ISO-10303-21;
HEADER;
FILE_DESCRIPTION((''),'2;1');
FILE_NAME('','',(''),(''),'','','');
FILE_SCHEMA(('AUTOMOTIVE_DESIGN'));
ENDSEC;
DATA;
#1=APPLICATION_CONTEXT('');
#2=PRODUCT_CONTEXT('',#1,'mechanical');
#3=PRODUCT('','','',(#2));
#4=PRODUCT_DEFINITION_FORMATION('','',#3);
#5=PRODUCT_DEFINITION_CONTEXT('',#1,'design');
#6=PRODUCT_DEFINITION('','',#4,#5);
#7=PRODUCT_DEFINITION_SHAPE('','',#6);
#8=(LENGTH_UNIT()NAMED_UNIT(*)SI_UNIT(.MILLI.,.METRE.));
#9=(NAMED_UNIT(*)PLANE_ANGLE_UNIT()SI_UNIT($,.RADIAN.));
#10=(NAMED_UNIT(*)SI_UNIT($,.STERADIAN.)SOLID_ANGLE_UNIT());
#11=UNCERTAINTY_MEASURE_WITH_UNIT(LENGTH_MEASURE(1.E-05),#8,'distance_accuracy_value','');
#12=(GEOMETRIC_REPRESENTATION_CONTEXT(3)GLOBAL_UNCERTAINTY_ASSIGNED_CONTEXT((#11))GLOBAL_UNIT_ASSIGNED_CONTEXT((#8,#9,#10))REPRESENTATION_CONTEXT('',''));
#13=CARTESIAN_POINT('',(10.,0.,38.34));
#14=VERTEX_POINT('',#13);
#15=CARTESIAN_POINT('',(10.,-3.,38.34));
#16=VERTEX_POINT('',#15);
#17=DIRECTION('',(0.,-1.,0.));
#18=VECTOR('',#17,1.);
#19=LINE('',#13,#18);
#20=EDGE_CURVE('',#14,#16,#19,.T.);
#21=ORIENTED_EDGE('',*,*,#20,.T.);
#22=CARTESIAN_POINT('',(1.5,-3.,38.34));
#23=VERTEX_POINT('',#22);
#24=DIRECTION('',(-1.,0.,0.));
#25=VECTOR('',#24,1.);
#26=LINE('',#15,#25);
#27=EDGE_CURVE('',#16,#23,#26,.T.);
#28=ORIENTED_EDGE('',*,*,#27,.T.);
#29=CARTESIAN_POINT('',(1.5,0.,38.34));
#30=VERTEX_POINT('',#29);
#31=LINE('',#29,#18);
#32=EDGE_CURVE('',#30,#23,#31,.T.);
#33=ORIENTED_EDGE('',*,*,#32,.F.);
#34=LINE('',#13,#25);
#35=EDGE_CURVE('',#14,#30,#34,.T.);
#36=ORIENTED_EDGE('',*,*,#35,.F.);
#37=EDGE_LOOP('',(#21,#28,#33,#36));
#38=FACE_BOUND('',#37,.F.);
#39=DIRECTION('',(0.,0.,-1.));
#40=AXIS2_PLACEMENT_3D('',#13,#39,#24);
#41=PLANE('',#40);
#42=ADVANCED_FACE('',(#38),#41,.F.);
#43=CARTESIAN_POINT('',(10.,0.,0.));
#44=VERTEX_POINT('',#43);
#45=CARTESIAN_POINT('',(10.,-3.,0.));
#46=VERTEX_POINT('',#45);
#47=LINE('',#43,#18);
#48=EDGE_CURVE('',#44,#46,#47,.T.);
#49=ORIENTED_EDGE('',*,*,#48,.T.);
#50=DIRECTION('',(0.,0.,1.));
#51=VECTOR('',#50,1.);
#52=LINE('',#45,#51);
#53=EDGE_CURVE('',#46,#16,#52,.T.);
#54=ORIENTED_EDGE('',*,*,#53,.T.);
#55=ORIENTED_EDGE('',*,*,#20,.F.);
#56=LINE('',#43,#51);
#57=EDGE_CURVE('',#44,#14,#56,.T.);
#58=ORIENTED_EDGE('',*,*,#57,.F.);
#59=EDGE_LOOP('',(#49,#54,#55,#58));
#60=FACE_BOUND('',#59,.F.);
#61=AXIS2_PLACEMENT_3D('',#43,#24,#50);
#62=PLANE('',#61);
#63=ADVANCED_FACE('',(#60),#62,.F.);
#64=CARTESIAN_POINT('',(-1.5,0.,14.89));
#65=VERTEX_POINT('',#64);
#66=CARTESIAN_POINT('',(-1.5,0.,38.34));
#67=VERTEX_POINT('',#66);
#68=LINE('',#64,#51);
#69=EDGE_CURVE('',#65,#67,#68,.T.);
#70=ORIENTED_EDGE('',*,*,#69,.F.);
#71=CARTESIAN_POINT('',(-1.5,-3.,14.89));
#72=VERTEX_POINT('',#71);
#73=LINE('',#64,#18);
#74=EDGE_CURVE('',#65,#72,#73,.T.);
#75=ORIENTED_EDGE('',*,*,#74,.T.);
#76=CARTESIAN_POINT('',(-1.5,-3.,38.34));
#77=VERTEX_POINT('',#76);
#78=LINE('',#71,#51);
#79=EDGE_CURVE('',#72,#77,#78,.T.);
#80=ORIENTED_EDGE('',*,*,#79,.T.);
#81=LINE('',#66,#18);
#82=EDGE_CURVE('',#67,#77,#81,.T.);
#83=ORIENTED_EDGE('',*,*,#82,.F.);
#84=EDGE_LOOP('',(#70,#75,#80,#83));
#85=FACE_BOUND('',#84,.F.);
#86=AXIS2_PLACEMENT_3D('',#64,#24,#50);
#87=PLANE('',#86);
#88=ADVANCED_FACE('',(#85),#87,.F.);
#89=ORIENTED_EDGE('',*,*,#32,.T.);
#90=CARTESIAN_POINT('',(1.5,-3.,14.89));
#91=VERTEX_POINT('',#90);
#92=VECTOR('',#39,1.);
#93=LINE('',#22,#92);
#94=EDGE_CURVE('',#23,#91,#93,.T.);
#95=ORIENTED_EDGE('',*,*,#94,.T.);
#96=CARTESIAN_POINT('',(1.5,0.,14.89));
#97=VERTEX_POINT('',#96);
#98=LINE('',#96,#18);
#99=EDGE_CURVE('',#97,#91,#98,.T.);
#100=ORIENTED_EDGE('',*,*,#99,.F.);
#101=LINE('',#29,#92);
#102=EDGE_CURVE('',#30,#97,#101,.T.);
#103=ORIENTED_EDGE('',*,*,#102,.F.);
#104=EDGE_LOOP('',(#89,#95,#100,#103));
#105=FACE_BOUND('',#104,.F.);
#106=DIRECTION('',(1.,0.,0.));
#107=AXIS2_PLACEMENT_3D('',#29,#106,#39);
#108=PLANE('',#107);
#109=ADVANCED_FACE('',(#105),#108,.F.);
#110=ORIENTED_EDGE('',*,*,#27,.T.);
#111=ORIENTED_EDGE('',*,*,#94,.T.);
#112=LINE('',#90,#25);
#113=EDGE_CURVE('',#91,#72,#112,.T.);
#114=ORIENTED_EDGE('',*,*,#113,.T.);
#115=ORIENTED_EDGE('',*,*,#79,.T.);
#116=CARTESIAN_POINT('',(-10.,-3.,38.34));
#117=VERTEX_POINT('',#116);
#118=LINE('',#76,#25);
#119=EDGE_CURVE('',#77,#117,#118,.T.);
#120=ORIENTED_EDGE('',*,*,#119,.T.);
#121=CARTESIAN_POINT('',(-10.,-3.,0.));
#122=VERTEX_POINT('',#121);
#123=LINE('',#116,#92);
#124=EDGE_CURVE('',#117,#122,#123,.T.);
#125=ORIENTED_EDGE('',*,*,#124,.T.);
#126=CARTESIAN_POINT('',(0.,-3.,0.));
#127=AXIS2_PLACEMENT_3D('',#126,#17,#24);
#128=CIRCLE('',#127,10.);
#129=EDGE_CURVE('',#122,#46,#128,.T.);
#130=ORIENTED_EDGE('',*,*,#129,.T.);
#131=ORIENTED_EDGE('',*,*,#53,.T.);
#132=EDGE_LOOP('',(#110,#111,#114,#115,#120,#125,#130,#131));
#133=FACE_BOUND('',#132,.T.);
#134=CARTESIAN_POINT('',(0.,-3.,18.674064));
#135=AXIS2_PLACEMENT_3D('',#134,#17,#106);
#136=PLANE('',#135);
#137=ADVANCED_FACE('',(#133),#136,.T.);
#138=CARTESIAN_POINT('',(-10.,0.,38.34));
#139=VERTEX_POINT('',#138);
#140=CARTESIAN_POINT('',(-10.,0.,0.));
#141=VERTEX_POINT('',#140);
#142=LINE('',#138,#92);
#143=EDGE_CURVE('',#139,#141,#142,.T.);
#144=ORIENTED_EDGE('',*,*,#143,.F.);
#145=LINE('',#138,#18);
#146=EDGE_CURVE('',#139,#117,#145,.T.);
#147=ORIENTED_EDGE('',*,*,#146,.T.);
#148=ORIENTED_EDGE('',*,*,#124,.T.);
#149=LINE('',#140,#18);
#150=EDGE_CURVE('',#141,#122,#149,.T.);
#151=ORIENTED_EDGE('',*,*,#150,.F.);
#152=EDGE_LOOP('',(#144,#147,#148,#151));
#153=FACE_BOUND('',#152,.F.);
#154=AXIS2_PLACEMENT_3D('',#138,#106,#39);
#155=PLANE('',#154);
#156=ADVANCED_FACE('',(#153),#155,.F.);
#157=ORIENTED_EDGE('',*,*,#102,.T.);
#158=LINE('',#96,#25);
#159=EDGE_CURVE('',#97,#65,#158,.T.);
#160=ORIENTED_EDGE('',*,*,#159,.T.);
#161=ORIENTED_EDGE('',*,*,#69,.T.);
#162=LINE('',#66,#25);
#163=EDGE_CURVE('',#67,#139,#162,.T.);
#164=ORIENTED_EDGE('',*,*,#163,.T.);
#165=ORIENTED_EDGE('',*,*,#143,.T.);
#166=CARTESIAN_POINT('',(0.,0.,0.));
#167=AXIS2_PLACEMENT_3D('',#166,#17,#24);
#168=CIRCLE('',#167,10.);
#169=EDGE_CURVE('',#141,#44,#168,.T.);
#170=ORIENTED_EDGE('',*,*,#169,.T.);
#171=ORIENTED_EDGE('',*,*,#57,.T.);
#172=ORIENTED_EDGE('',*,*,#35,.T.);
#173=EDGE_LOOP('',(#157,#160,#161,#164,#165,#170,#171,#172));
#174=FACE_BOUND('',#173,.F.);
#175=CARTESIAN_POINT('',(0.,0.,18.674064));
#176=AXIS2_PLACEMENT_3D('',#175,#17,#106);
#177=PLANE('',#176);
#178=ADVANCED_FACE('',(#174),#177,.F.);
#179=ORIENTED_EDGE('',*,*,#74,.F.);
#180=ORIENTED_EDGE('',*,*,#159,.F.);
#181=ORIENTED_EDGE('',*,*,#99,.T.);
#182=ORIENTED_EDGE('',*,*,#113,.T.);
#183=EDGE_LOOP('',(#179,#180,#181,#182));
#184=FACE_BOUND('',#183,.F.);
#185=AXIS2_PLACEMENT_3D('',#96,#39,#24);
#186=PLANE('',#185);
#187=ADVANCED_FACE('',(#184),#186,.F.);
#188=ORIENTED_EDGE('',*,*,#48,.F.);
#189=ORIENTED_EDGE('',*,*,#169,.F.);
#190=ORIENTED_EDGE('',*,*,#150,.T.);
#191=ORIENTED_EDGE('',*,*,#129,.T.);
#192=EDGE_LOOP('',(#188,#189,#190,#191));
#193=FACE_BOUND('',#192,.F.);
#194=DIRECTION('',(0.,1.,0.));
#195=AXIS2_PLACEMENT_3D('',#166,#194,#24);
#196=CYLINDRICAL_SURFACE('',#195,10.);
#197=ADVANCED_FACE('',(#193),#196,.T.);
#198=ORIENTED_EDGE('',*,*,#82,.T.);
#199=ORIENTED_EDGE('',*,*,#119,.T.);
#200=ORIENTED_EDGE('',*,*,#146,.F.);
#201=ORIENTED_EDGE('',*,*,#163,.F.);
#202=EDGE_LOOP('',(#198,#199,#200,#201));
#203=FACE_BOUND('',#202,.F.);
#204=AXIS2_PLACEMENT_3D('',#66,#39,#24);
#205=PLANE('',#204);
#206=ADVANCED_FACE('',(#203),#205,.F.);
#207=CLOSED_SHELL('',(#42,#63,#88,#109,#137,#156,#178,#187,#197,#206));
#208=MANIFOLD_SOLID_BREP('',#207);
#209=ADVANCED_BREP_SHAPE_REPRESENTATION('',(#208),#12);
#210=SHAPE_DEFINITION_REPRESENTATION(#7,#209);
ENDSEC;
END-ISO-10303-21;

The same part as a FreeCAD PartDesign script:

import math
import FreeCAD as App
import Part
import Sketcher

doc = App.newDocument("Part")
body = doc.addObject("PartDesign::Body", "Body")

# Sketch on XZ plane
sketch1 = body.newObject("Sketcher::SketchObject", "Sketch")
sketch1.AttachmentSupport = (doc.getObject("XZ_Plane"), [""])
sketch1.MapMode = "FlatFace"
sketch1.addGeometry([
    Part.LineSegment(App.Vector(-10, 38.3, 0), App.Vector(-10, 0, 0)),  # 0
    Part.ArcOfCircle(Part.Circle(App.Vector(0, 0, 0), App.Vector(0, 0, 1), 10), math.radians(180), math.radians(360)),  # 1
    Part.LineSegment(App.Vector(10, 0, 0), App.Vector(10, 38.3, 0)),  # 2
    Part.LineSegment(App.Vector(10, 38.3, 0), App.Vector(1.5, 38.3, 0)),  # 3
    Part.LineSegment(App.Vector(1.5, 38.3, 0), App.Vector(1.5, 14.9, 0)),  # 4
    Part.LineSegment(App.Vector(1.5, 14.9, 0), App.Vector(-1.5, 14.9, 0)),  # 5
    Part.LineSegment(App.Vector(-1.5, 14.9, 0), App.Vector(-1.5, 38.3, 0)),  # 6
    Part.LineSegment(App.Vector(-1.5, 38.3, 0), App.Vector(-10, 38.3, 0)),  # 7
], False)
sketch1.addConstraint([
    Sketcher.Constraint("Tangent", 0, 2, 1, 1),
    Sketcher.Constraint("Tangent", 1, 2, 2, 1),
    Sketcher.Constraint("Coincident", 2, 2, 3, 1),
    Sketcher.Constraint("Coincident", 3, 2, 4, 1),
    Sketcher.Constraint("Coincident", 4, 2, 5, 1),
    Sketcher.Constraint("Coincident", 5, 2, 6, 1),
    Sketcher.Constraint("Coincident", 6, 2, 7, 1),
    Sketcher.Constraint("Coincident", 7, 2, 0, 1),
    Sketcher.Constraint("Vertical", 0),
    Sketcher.Constraint("Vertical", 2),
    Sketcher.Constraint("Horizontal", 3),
    Sketcher.Constraint("Vertical", 4),
    Sketcher.Constraint("Horizontal", 5),
    Sketcher.Constraint("Vertical", 6),
    Sketcher.Constraint("Horizontal", 7),
    Sketcher.Constraint("Coincident", 1, 3, -1, 1),
    Sketcher.Constraint("Symmetric", 3, 2, 6, 2, -2),
    Sketcher.Constraint("Radius", 1, 10.0),
    Sketcher.Constraint("DistanceX", 5, 2, 5, 1, 3.0),
    Sketcher.Constraint("DistanceY", 0, 2, 0, 1, 38.34),
    Sketcher.Constraint("DistanceY", 4, 2, 4, 1, 23.45),
])
pad1 = body.newObject("PartDesign::Pad", "Pad")
pad1.Profile = sketch1
pad1.Length = 3

doc.recompute()
